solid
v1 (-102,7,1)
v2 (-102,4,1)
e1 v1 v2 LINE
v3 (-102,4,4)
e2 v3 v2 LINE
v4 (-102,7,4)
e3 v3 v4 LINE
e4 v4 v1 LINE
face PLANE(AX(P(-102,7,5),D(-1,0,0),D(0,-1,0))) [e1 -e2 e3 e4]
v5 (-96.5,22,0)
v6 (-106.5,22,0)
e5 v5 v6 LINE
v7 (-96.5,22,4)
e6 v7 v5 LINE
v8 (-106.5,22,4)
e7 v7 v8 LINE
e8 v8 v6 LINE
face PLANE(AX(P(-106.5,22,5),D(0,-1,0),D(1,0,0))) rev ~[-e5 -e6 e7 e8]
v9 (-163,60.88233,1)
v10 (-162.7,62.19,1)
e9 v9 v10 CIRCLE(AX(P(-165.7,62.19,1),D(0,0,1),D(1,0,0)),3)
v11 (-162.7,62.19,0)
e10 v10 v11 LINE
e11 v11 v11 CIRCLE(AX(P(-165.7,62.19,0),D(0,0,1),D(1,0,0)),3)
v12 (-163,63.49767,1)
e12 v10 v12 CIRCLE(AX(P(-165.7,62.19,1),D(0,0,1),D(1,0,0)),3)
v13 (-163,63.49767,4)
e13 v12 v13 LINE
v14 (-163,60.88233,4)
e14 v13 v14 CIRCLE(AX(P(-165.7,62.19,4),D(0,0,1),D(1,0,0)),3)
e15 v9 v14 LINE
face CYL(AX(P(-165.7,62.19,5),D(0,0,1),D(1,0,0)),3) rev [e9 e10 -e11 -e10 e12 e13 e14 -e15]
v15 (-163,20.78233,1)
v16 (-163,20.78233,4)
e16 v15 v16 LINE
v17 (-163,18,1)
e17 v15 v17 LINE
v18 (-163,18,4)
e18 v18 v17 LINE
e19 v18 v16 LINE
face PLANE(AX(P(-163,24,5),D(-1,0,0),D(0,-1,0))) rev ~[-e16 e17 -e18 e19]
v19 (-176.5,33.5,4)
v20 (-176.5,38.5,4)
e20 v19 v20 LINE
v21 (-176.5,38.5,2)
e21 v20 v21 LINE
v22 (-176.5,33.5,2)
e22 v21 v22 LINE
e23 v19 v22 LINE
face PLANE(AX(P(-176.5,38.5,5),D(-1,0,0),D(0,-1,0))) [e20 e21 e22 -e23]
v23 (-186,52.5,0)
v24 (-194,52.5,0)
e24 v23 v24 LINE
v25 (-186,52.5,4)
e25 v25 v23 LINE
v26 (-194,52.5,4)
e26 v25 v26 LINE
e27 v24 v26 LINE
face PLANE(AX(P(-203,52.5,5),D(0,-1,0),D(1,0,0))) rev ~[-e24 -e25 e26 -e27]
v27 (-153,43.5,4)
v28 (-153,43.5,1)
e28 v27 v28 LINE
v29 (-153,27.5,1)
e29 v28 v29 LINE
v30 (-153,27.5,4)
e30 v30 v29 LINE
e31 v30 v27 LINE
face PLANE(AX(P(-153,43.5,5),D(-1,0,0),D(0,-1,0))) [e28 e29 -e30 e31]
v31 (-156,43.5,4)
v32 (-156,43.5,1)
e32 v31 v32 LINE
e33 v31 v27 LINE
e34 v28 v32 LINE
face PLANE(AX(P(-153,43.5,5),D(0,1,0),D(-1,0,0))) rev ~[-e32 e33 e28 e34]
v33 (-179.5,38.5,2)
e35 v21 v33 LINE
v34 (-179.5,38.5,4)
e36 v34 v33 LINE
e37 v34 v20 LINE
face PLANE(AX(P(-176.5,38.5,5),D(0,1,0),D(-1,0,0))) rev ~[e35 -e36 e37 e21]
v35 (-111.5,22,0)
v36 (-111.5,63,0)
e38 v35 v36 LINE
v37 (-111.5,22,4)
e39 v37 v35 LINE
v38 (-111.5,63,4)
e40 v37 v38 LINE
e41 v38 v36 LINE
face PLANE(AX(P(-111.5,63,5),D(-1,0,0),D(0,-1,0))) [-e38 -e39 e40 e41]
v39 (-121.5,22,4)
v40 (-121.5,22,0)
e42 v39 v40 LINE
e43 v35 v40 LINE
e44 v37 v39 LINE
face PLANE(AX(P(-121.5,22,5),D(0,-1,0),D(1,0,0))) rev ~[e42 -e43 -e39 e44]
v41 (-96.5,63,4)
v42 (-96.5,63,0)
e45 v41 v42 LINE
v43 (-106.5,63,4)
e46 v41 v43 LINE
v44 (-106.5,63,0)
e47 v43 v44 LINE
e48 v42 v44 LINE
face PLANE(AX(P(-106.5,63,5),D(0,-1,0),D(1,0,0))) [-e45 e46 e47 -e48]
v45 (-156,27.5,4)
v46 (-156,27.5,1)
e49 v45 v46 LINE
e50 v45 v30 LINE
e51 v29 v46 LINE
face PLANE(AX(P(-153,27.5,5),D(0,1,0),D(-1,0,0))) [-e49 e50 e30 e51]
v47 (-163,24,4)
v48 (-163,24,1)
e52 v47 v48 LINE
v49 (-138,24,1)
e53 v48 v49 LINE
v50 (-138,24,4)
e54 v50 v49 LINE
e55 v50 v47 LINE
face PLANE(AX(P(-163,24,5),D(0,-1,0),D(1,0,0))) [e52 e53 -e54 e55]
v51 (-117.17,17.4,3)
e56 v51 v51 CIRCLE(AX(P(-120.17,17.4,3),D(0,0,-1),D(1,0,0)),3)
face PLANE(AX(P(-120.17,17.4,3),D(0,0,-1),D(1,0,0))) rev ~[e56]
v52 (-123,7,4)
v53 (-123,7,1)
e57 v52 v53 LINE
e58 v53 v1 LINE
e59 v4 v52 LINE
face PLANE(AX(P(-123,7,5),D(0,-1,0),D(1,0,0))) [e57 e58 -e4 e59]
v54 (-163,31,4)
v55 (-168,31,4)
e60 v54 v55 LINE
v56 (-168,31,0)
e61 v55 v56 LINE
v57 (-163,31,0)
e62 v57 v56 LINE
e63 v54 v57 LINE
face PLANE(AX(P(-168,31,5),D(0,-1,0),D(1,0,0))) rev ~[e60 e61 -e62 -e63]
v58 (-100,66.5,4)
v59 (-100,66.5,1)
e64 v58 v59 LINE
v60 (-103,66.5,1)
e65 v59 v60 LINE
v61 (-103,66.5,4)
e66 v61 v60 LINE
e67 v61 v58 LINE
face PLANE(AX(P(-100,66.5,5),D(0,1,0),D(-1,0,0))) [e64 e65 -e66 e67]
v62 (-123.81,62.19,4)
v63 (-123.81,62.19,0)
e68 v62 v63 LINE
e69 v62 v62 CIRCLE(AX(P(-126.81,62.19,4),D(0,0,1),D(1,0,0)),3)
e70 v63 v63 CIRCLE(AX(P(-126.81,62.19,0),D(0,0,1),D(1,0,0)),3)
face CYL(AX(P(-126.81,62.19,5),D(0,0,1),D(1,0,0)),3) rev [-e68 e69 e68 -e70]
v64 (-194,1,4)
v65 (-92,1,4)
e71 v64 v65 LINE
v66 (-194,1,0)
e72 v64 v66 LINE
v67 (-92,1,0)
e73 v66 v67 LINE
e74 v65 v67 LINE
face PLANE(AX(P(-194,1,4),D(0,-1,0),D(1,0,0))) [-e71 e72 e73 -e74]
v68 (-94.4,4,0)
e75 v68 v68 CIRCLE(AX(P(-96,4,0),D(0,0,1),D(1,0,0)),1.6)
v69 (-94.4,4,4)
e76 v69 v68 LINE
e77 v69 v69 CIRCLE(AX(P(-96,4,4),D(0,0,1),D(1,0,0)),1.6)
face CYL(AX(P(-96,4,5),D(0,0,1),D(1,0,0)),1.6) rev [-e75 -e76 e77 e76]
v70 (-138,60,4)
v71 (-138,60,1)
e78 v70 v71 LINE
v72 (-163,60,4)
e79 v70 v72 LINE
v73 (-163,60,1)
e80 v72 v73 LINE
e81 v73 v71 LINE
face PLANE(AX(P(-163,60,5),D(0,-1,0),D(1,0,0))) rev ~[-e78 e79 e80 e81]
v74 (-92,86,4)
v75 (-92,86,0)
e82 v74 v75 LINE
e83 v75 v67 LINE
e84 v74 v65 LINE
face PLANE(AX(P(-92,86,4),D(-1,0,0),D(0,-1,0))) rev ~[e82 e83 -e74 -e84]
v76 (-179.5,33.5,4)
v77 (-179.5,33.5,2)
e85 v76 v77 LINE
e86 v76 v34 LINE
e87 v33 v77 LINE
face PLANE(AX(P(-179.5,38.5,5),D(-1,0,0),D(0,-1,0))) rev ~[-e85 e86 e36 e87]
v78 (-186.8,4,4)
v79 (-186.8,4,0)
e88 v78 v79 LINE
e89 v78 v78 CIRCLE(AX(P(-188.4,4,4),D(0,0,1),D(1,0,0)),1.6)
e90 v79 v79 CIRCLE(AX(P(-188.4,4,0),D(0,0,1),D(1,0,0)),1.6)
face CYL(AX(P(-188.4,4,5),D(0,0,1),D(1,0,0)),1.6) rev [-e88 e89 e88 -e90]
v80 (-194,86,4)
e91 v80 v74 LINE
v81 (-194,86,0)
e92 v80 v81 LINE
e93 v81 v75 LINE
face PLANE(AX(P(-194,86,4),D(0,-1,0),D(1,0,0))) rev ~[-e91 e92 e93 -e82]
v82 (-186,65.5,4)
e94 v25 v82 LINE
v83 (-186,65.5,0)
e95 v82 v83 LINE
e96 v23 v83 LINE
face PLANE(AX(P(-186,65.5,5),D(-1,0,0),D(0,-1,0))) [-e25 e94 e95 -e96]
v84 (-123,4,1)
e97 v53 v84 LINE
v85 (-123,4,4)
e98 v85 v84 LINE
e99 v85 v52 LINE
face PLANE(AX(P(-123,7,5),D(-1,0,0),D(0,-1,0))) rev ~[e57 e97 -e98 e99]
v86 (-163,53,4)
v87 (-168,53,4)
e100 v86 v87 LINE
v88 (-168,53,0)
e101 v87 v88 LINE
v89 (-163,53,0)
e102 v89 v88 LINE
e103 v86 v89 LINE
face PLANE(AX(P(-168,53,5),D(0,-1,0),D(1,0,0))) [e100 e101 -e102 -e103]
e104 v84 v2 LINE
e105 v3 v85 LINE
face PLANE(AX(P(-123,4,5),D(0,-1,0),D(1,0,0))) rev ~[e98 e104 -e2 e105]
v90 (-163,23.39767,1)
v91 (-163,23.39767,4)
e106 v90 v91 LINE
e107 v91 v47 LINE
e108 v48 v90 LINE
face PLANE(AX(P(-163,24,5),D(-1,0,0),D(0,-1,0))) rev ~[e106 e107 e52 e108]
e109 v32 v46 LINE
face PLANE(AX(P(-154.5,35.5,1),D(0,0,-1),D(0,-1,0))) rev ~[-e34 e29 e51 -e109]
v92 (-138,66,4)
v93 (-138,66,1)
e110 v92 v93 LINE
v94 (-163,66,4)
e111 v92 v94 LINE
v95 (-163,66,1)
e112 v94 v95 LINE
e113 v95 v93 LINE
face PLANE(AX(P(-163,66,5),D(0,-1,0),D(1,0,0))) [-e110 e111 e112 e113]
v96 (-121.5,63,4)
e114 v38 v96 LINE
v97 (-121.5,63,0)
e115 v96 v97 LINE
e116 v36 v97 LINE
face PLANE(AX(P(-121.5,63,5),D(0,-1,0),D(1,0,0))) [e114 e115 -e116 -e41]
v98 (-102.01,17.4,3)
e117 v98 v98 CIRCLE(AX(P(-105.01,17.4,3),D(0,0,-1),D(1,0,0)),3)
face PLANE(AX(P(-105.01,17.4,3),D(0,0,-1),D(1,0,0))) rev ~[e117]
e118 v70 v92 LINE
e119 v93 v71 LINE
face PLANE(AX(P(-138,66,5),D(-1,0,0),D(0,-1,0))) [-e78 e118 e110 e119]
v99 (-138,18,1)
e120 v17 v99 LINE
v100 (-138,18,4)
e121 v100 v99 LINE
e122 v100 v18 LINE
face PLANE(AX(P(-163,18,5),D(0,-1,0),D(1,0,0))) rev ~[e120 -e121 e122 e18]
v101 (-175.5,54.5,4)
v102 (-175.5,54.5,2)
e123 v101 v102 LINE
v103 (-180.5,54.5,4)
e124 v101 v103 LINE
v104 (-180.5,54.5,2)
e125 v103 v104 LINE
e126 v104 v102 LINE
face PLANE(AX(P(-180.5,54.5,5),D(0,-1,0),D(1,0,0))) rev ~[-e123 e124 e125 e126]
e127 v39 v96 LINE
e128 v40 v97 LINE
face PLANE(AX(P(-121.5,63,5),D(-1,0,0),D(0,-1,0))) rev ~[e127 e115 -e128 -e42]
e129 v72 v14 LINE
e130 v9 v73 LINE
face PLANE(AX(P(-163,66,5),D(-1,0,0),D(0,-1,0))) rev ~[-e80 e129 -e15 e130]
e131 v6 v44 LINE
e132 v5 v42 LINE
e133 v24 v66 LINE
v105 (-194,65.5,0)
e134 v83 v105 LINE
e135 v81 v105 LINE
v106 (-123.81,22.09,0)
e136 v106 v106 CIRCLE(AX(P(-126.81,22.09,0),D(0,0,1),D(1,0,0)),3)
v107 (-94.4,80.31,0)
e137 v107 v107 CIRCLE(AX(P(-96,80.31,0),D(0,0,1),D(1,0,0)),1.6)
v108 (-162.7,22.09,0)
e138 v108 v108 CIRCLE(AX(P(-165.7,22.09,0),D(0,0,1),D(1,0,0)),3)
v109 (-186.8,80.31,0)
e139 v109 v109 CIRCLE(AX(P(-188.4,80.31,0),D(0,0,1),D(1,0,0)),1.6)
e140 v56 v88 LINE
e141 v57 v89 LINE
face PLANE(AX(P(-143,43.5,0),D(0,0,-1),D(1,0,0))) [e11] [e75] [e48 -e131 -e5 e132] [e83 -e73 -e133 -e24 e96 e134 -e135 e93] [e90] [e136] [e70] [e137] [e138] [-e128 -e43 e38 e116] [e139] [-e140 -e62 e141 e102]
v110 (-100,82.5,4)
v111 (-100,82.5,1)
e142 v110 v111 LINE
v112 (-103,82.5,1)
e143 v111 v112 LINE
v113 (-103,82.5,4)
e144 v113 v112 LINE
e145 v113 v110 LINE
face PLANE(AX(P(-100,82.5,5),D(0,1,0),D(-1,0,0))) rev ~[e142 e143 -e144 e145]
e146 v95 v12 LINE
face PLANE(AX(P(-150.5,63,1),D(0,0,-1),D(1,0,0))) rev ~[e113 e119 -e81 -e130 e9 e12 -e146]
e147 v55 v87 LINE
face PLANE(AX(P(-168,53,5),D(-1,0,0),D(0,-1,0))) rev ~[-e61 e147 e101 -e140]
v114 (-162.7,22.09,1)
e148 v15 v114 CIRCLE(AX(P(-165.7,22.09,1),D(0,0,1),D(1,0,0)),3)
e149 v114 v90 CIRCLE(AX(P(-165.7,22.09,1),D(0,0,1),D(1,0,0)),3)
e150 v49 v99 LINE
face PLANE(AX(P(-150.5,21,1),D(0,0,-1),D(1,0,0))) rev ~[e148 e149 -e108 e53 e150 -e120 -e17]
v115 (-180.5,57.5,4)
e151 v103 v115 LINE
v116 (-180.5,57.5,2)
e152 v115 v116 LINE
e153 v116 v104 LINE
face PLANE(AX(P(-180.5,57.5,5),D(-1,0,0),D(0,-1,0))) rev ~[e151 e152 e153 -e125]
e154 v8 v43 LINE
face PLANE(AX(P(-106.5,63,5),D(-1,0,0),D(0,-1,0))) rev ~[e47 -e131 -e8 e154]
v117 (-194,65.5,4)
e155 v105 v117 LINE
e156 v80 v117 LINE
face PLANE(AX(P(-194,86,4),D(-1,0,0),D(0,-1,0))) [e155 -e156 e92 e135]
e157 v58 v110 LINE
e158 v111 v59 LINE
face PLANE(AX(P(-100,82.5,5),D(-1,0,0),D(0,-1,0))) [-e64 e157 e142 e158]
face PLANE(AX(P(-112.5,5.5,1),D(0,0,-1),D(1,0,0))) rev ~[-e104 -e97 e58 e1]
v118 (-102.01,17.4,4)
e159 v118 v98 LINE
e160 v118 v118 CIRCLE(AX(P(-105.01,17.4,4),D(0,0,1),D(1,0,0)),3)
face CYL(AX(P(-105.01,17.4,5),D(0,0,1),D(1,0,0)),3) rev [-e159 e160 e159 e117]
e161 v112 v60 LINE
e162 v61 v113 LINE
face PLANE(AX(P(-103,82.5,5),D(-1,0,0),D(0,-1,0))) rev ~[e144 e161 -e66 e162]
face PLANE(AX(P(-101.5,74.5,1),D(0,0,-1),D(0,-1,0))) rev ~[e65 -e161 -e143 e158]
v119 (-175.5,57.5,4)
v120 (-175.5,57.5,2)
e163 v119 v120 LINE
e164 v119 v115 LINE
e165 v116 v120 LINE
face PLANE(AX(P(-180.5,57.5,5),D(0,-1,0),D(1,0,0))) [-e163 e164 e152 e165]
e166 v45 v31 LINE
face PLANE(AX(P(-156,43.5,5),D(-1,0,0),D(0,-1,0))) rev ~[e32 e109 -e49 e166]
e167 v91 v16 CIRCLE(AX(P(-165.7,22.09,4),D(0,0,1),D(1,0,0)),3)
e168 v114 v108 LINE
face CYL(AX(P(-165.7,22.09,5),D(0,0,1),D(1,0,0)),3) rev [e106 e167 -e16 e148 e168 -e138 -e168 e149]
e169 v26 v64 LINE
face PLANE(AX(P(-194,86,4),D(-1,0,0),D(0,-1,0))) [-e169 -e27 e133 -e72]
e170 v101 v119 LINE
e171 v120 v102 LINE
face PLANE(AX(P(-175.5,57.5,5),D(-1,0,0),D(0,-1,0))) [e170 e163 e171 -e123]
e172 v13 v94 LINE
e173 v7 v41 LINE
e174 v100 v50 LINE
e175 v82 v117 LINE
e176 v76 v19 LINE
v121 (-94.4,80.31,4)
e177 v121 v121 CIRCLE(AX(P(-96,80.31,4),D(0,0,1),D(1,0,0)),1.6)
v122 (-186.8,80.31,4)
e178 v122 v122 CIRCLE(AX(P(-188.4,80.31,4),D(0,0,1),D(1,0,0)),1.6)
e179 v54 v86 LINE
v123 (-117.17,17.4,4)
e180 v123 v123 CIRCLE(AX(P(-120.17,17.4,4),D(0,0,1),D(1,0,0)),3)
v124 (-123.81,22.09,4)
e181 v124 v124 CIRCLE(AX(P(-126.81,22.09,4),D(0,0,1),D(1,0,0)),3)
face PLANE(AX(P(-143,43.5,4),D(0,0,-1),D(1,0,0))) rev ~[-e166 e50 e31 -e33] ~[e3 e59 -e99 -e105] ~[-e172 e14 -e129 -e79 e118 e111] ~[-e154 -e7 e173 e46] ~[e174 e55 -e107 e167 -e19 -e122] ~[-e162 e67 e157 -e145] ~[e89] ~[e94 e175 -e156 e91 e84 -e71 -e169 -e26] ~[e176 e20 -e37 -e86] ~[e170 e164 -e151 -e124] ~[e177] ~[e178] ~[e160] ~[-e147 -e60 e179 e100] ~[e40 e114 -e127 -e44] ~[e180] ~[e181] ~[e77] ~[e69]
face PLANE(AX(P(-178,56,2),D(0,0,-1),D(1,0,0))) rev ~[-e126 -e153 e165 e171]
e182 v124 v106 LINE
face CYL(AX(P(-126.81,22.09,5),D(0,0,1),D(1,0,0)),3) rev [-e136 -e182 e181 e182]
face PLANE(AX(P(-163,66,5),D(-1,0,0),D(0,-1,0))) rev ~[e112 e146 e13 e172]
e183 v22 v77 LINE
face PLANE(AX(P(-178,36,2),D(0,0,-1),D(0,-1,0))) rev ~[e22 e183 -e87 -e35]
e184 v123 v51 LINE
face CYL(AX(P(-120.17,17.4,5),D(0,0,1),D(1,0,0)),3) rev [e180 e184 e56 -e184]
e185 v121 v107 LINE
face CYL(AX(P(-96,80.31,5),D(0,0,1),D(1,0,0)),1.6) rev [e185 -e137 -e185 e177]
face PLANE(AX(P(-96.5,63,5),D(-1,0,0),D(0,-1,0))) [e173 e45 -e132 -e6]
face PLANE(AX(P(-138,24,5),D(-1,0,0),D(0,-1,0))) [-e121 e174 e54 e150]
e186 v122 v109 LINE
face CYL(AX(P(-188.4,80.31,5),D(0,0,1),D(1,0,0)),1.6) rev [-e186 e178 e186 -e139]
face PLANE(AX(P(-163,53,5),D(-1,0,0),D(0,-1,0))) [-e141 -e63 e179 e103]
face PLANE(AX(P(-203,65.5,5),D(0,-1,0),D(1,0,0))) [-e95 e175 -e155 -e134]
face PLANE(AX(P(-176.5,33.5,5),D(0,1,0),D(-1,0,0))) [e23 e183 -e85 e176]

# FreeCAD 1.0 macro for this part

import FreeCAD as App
import Part
import Sketcher
Q = App.Units.Quantity

doc = App.newDocument("Part")
params = doc.addObject("Spreadsheet::Sheet", "Params")
for row, (alias, value) in enumerate([
    ("sketch1_diameter", "3.2 mm"),
    ("pad1_length", "10 mm"),
    ("sketch2_diameter", "3.2 mm"),
    ("pad2_length", "10 mm"),
    ("sketch3_diameter", "3.2 mm"),
    ("pad3_length", "10 mm"),
    ("sketch4_diameter", "3.2 mm"),
    ("pad4_length", "10 mm"),
    ("sketch5_width", "16 mm"),
    ("sketch5_height", "3 mm"),
    ("pad5_length", "4 mm"),
    ("sketch6_width", "5 mm"),
    ("sketch6_height", "3 mm"),
    ("pad6_length", "3 mm"),
    ("sketch7_width", "16 mm"),
    ("sketch7_height", "3 mm"),
    ("pad7_length", "4 mm"),
    ("sketch8_width", "25 mm"),
    ("sketch8_height", "6 mm"),
    ("pad8_length", "4 mm"),
    ("sketch9_width", "25 mm"),
    ("sketch9_height", "6 mm"),
    ("pad9_length", "4 mm"),
    ("sketch10_width", "5 mm"),
    ("sketch10_height", "3 mm"),
    ("pad10_length", "3 mm"),
    ("sketch11_diameter", "6 mm"),
    ("pad11_length", "2 mm"),
    ("sketch12_diameter", "6 mm"),
    ("pad12_length", "2 mm"),
    ("sketch13_diameter", "3.2 mm"),
    ("pad13_length", "10 mm"),
    ("sketch14_diameter", "3.2 mm"),
    ("pad14_length", "10 mm"),
    ("sketch15_diameter", "3.2 mm"),
    ("pad15_length", "10 mm"),
    ("sketch16_diameter", "3.2 mm"),
    ("pad16_length", "10 mm"),
    ("sketch17_width", "21 mm"),
    ("sketch17_height", "3 mm"),
    ("pad17_length", "4 mm"),
    ("sketch18_diameter", "6 mm"),
    ("pad18_length", "10 mm"),
    ("sketch19_diameter", "6 mm"),
    ("pad19_length", "10 mm"),
    ("sketch20_diameter", "6 mm"),
    ("pad20_length", "10 mm"),
    ("sketch21_diameter", "6 mm"),
    ("pad21_length", "10 mm"),
    ("sketch22_width", "5 mm"),
    ("sketch22_height", "22 mm"),
    ("pad22_length", "10 mm"),
    ("sketch23_width", "10 mm"),
    ("sketch23_height", "41 mm"),
    ("pad23_length", "10 mm"),
    ("sketch24_width", "10 mm"),
    ("sketch24_height", "41 mm"),
    ("pad24_length", "10 mm"),
    ("sketch25_width", "17 mm"),
    ("sketch25_height", "13 mm"),
    ("pad25_length", "10 mm"),
    ("sketch26_width", "102 mm"),
    ("sketch26_height", "85 mm"),
    ("pad26_length", "4 mm"),
], start=1):
    params.set(f"A{row}", alias)
    params.set(f"B{row}", "=" + value)
    params.setAlias(f"B{row}", alias)

body = doc.addObject("PartDesign::Body", "Body")

# Sketch on XY plane
sketch1 = doc.addObject("Sketcher::SketchObject", "Sketch")
body.addObject(sketch1)
sketch1.AttachmentSupport = (doc.XY_Plane, [""])
sketch1.MapMode = "FlatFace"
sketch1.addGeometry(Part.Circle(App.Vector(3.6, 5.69, 0), App.Vector(0, 0, 1), 1.6), False)
sketch1.addConstraint(Sketcher.Constraint("Diameter", 0, Q("3.2 mm")))
sketch1.addConstraint(Sketcher.Constraint("DistanceX", -1, 1, 0, 3, Q("3.6 mm")))
sketch1.addConstraint(Sketcher.Constraint("DistanceY", -1, 1, 0, 3, Q("5.69 mm")))
sketch1.setExpression("Constraints[0]", "Params.sketch1_diameter")
pad1 = doc.addObject("PartDesign::Pad", "Pad")
body.addObject(pad1)
pad1.Profile = sketch1
pad1.setExpression("Length", "Params.pad1_length")
body2 = doc.addObject("PartDesign::Body", "Body001")

# Sketch on XY plane
sketch2 = doc.addObject("Sketcher::SketchObject", "Sketch001")
body2.addObject(sketch2)
sketch2.AttachmentSupport = (doc.getObject("XY_Plane001"), [""])
sketch2.MapMode = "FlatFace"
sketch2.addGeometry(Part.Circle(App.Vector(96, 5.69, 0), App.Vector(0, 0, 1), 1.6), False)
sketch2.addConstraint(Sketcher.Constraint("Diameter", 0, Q("3.2 mm")))
sketch2.addConstraint(Sketcher.Constraint("DistanceX", -1, 1, 0, 3, Q("96 mm")))
sketch2.addConstraint(Sketcher.Constraint("DistanceY", -1, 1, 0, 3, Q("5.69 mm")))
sketch2.setExpression("Constraints[0]", "Params.sketch2_diameter")
pad2 = doc.addObject("PartDesign::Pad", "Pad001")
body2.addObject(pad2)
pad2.Profile = sketch2
pad2.setExpression("Length", "Params.pad2_length")
body3 = doc.addObject("PartDesign::Body", "Body002")

# Sketch on XY plane
sketch3 = doc.addObject("Sketcher::SketchObject", "Sketch002")
body3.addObject(sketch3)
sketch3.AttachmentSupport = (doc.getObject("XY_Plane002"), [""])
sketch3.MapMode = "FlatFace"
sketch3.addGeometry(Part.Circle(App.Vector(3.6, 82, 0), App.Vector(0, 0, 1), 1.6), False)
sketch3.addConstraint(Sketcher.Constraint("Diameter", 0, Q("3.2 mm")))
sketch3.addConstraint(Sketcher.Constraint("DistanceY", -1, 1, 0, 3, Q("82 mm")))
sketch3.addConstraint(Sketcher.Constraint("DistanceX", -1, 1, 0, 3, Q("3.6 mm")))
sketch3.setExpression("Constraints[0]", "Params.sketch3_diameter")
pad3 = doc.addObject("PartDesign::Pad", "Pad002")
body3.addObject(pad3)
pad3.Profile = sketch3
pad3.setExpression("Length", "Params.pad3_length")
body4 = doc.addObject("PartDesign::Body", "Body003")

# Sketch on XY plane
sketch4 = doc.addObject("Sketcher::SketchObject", "Sketch003")
body4.addObject(sketch4)
sketch4.AttachmentSupport = (doc.getObject("XY_Plane003"), [""])
sketch4.MapMode = "FlatFace"
sketch4.addGeometry(Part.Circle(App.Vector(96, 82, 0), App.Vector(0, 0, 1), 1.6), False)
sketch4.addConstraint(Sketcher.Constraint("Diameter", 0, Q("3.2 mm")))
sketch4.addConstraint(Sketcher.Constraint("DistanceX", -1, 1, 0, 3, Q("96 mm")))
sketch4.addConstraint(Sketcher.Constraint("DistanceY", -1, 1, 0, 3, Q("82 mm")))
sketch4.setExpression("Constraints[0]", "Params.sketch4_diameter")
pad4 = doc.addObject("PartDesign::Pad", "Pad003")
body4.addObject(pad4)
pad4.Profile = sketch4
pad4.setExpression("Length", "Params.pad4_length")
body5 = doc.addObject("PartDesign::Body", "Body004")

# Sketch on XY plane
sketch5 = doc.addObject("Sketcher::SketchObject", "Sketch004")
body5.addObject(sketch5)
sketch5.AttachmentSupport = (doc.getObject("XY_Plane004"), [""])
sketch5.MapMode = "FlatFace"
sketch5.addGeometry(Part.LineSegment(App.Vector(0, 3, 0), App.Vector(0, 0, 0)), False)
sketch5.addGeometry(Part.LineSegment(App.Vector(0, 0, 0), App.Vector(16, 0, 0)), False)
sketch5.addGeometry(Part.LineSegment(App.Vector(16, 0, 0), App.Vector(16, 3, 0)), False)
sketch5.addGeometry(Part.LineSegment(App.Vector(16, 3, 0), App.Vector(0, 3, 0)), False)
sketch5.addConstraint(Sketcher.Constraint("Coincident", 0, 2, 1, 1))
sketch5.addConstraint(Sketcher.Constraint("Coincident", 1, 2, 2, 1))
sketch5.addConstraint(Sketcher.Constraint("Coincident", 2, 2, 3, 1))
sketch5.addConstraint(Sketcher.Constraint("Coincident", 3, 2, 0, 1))
sketch5.addConstraint(Sketcher.Constraint("Vertical", 0))
sketch5.addConstraint(Sketcher.Constraint("Horizontal", 1))
sketch5.addConstraint(Sketcher.Constraint("Vertical", 2))
sketch5.addConstraint(Sketcher.Constraint("Horizontal", 3))
sketch5.addConstraint(Sketcher.Constraint("Coincident", 0, 2, -1, 1))
sketch5.addConstraint(Sketcher.Constraint("DistanceX", 1, 1, 1, 2, Q("16 mm")))
sketch5.addConstraint(Sketcher.Constraint("DistanceY", 0, 2, 0, 1, Q("3 mm")))
sketch5.setExpression("Constraints[9]", "Params.sketch5_width")
sketch5.setExpression("Constraints[10]", "Params.sketch5_height")
pad5 = doc.addObject("PartDesign::Pad", "Pad004")
body5.addObject(pad5)
pad5.Profile = sketch5
pad5.setExpression("Length", "Params.pad5_length")
body6 = doc.addObject("PartDesign::Body", "Body005")
doc.recompute()

body5.Placement = App.Placement(App.Vector(39, 42.5, 0), App.Rotation(App.Vector(0, 0, 1), 90))
boolean = doc.addObject("PartDesign::Boolean", "Boolean")
body6.addObject(boolean)
boolean.Type = "Fuse"
boolean.addObjects([body5])
body7 = doc.addObject("PartDesign::Body", "Body006")

# Sketch on XY plane
sketch6 = doc.addObject("Sketcher::SketchObject", "Sketch005")
body7.addObject(sketch6)
sketch6.AttachmentSupport = (doc.getObject("XY_Plane006"), [""])
sketch6.MapMode = "FlatFace"
sketch6.addGeometry(Part.LineSegment(App.Vector(0, 3, 0), App.Vector(0, 0, 0)), False)
sketch6.addGeometry(Part.LineSegment(App.Vector(0, 0, 0), App.Vector(5, 0, 0)), False)
sketch6.addGeometry(Part.LineSegment(App.Vector(5, 0, 0), App.Vector(5, 3, 0)), False)
sketch6.addGeometry(Part.LineSegment(App.Vector(5, 3, 0), App.Vector(0, 3, 0)), False)
sketch6.addConstraint(Sketcher.Constraint("Coincident", 0, 2, 1, 1))
sketch6.addConstraint(Sketcher.Constraint("Coincident", 1, 2, 2, 1))
sketch6.addConstraint(Sketcher.Constraint("Coincident", 2, 2, 3, 1))
sketch6.addConstraint(Sketcher.Constraint("Coincident", 3, 2, 0, 1))
sketch6.addConstraint(Sketcher.Constraint("Vertical", 0))
sketch6.addConstraint(Sketcher.Constraint("Horizontal", 1))
sketch6.addConstraint(Sketcher.Constraint("Vertical", 2))
sketch6.addConstraint(Sketcher.Constraint("Horizontal", 3))
sketch6.addConstraint(Sketcher.Constraint("Coincident", 0, 2, -1, 1))
sketch6.addConstraint(Sketcher.Constraint("DistanceX", 1, 1, 1, 2, Q("5 mm")))
sketch6.addConstraint(Sketcher.Constraint("DistanceY", 0, 2, 0, 1, Q("3 mm")))
sketch6.setExpression("Constraints[9]", "Params.sketch6_width")
sketch6.setExpression("Constraints[10]", "Params.sketch6_height")
pad6 = doc.addObject("PartDesign::Pad", "Pad005")
body7.addObject(pad6)
pad6.Profile = sketch6
pad6.setExpression("Length", "Params.pad6_length")
body8 = doc.addObject("PartDesign::Body", "Body007")
doc.recompute()

body7.Placement = App.Placement(App.Vector(15.5, 47.5, 0), App.Rotation(App.Vector(0, 0, 1), 90))
boolean2 = doc.addObject("PartDesign::Boolean", "Boolean001")
body8.addObject(boolean2)
boolean2.Type = "Fuse"
boolean2.addObjects([body7])
body9 = doc.addObject("PartDesign::Body", "Body008")

# Sketch on XY plane
sketch7 = doc.addObject("Sketcher::SketchObject", "Sketch006")
body9.addObject(sketch7)
sketch7.AttachmentSupport = (doc.getObject("XY_Plane008"), [""])
sketch7.MapMode = "FlatFace"
sketch7.addGeometry(Part.LineSegment(App.Vector(0, 3, 0), App.Vector(0, 0, 0)), False)
sketch7.addGeometry(Part.LineSegment(App.Vector(0, 0, 0), App.Vector(16, 0, 0)), False)
sketch7.addGeometry(Part.LineSegment(App.Vector(16, 0, 0), App.Vector(16, 3, 0)), False)
sketch7.addGeometry(Part.LineSegment(App.Vector(16, 3, 0), App.Vector(0, 3, 0)), False)
sketch7.addConstraint(Sketcher.Constraint("Coincident", 0, 2, 1, 1))
sketch7.addConstraint(Sketcher.Constraint("Coincident", 1, 2, 2, 1))
sketch7.addConstraint(Sketcher.Constraint("Coincident", 2, 2, 3, 1))
sketch7.addConstraint(Sketcher.Constraint("Coincident", 3, 2, 0, 1))
sketch7.addConstraint(Sketcher.Constraint("Vertical", 0))
sketch7.addConstraint(Sketcher.Constraint("Horizontal", 1))
sketch7.addConstraint(Sketcher.Constraint("Vertical", 2))
sketch7.addConstraint(Sketcher.Constraint("Horizontal", 3))
sketch7.addConstraint(Sketcher.Constraint("Coincident", 0, 2, -1, 1))
sketch7.addConstraint(Sketcher.Constraint("DistanceX", 1, 1, 1, 2, Q("16 mm")))
sketch7.addConstraint(Sketcher.Constraint("DistanceY", 0, 2, 0, 1, Q("3 mm")))
sketch7.setExpression("Constraints[9]", "Params.sketch7_width")
sketch7.setExpression("Constraints[10]", "Params.sketch7_height")
pad7 = doc.addObject("PartDesign::Pad", "Pad006")
body9.addObject(pad7)
pad7.Profile = sketch7
pad7.setExpression("Length", "Params.pad7_length")
body10 = doc.addObject("PartDesign::Body", "Body009")
doc.recompute()

body9.Placement = App.Placement(App.Vector(92, 3.5, 0), App.Rotation(App.Vector(0, 0, 1), 90))
boolean3 = doc.addObject("PartDesign::Boolean", "Boolean002")
body10.addObject(boolean3)
boolean3.Type = "Fuse"
boolean3.addObjects([body9])
body11 = doc.addObject("PartDesign::Body", "Body010")

# Sketch on XY plane
sketch8 = doc.addObject("Sketcher::SketchObject", "Sketch007")
body11.addObject(sketch8)
sketch8.AttachmentSupport = (doc.getObject("XY_Plane010"), [""])
sketch8.MapMode = "FlatFace"
sketch8.addGeometry(Part.LineSegment(App.Vector(29, 68, 0), App.Vector(29, 62, 0)), False)
sketch8.addGeometry(Part.LineSegment(App.Vector(29, 62, 0), App.Vector(54, 62, 0)), False)
sketch8.addGeometry(Part.LineSegment(App.Vector(54, 62, 0), App.Vector(54, 68, 0)), False)
sketch8.addGeometry(Part.LineSegment(App.Vector(54, 68, 0), App.Vector(29, 68, 0)), False)
sketch8.addConstraint(Sketcher.Constraint("Coincident", 0, 2, 1, 1))
sketch8.addConstraint(Sketcher.Constraint("Coincident", 1, 2, 2, 1))
sketch8.addConstraint(Sketcher.Constraint("Coincident", 2, 2, 3, 1))
sketch8.addConstraint(Sketcher.Constraint("Coincident", 3, 2, 0, 1))
sketch8.addConstraint(Sketcher.Constraint("Vertical", 0))
sketch8.addConstraint(Sketcher.Constraint("Horizontal", 1))
sketch8.addConstraint(Sketcher.Constraint("Vertical", 2))
sketch8.addConstraint(Sketcher.Constraint("Horizontal", 3))
sketch8.addConstraint(Sketcher.Constraint("DistanceX", 1, 1, 1, 2, Q("25 mm")))
sketch8.addConstraint(Sketcher.Constraint("DistanceY", 0, 2, 0, 1, Q("6 mm")))
sketch8.addConstraint(Sketcher.Constraint("DistanceX", -1, 1, 0, 2, Q("29 mm")))
sketch8.addConstraint(Sketcher.Constraint("DistanceY", -1, 1, 0, 2, Q("62 mm")))
sketch8.setExpression("Constraints[8]", "Params.sketch8_width")
sketch8.setExpression("Constraints[9]", "Params.sketch8_height")
pad8 = doc.addObject("PartDesign::Pad", "Pad007")
body11.addObject(pad8)
pad8.Profile = sketch8
pad8.setExpression("Length", "Params.pad8_length")
body12 = doc.addObject("PartDesign::Body", "Body011")

# Sketch on XY plane
sketch9 = doc.addObject("Sketcher::SketchObject", "Sketch008")
body12.addObject(sketch9)
sketch9.AttachmentSupport = (doc.getObject("XY_Plane011"), [""])
sketch9.MapMode = "FlatFace"
sketch9.addGeometry(Part.LineSegment(App.Vector(29, 26, 0), App.Vector(29, 20, 0)), False)
sketch9.addGeometry(Part.LineSegment(App.Vector(29, 20, 0), App.Vector(54, 20, 0)), False)
sketch9.addGeometry(Part.LineSegment(App.Vector(54, 20, 0), App.Vector(54, 26, 0)), False)
sketch9.addGeometry(Part.LineSegment(App.Vector(54, 26, 0), App.Vector(29, 26, 0)), False)
sketch9.addConstraint(Sketcher.Constraint("Coincident", 0, 2, 1, 1))
sketch9.addConstraint(Sketcher.Constraint("Coincident", 1, 2, 2, 1))
sketch9.addConstraint(Sketcher.Constraint("Coincident", 2, 2, 3, 1))
sketch9.addConstraint(Sketcher.Constraint("Coincident", 3, 2, 0, 1))
sketch9.addConstraint(Sketcher.Constraint("Vertical", 0))
sketch9.addConstraint(Sketcher.Constraint("Horizontal", 1))
sketch9.addConstraint(Sketcher.Constraint("Vertical", 2))
sketch9.addConstraint(Sketcher.Constraint("Horizontal", 3))
sketch9.addConstraint(Sketcher.Constraint("DistanceX", 1, 1, 1, 2, Q("25 mm")))
sketch9.addConstraint(Sketcher.Constraint("DistanceY", 0, 2, 0, 1, Q("6 mm")))
sketch9.addConstraint(Sketcher.Constraint("DistanceX", -1, 1, 0, 2, Q("29 mm")))
sketch9.addConstraint(Sketcher.Constraint("DistanceY", -1, 1, 0, 2, Q("20 mm")))
sketch9.setExpression("Constraints[8]", "Params.sketch9_width")
sketch9.setExpression("Constraints[9]", "Params.sketch9_height")
pad9 = doc.addObject("PartDesign::Pad", "Pad008")
body12.addObject(pad9)
pad9.Profile = sketch9
pad9.setExpression("Length", "Params.pad9_length")
body13 = doc.addObject("PartDesign::Body", "Body012")

# Sketch on XY plane
sketch10 = doc.addObject("Sketcher::SketchObject", "Sketch009")
body13.addObject(sketch10)
sketch10.AttachmentSupport = (doc.getObject("XY_Plane012"), [""])
sketch10.MapMode = "FlatFace"
sketch10.addGeometry(Part.LineSegment(App.Vector(11.5, 31.5, 0), App.Vector(11.5, 28.5, 0)), False)
sketch10.addGeometry(Part.LineSegment(App.Vector(11.5, 28.5, 0), App.Vector(16.5, 28.5, 0)), False)
sketch10.addGeometry(Part.LineSegment(App.Vector(16.5, 28.5, 0), App.Vector(16.5, 31.5, 0)), False)
sketch10.addGeometry(Part.LineSegment(App.Vector(16.5, 31.5, 0), App.Vector(11.5, 31.5, 0)), False)
sketch10.addConstraint(Sketcher.Constraint("Coincident", 0, 2, 1, 1))
sketch10.addConstraint(Sketcher.Constraint("Coincident", 1, 2, 2, 1))
sketch10.addConstraint(Sketcher.Constraint("Coincident", 2, 2, 3, 1))
sketch10.addConstraint(Sketcher.Constraint("Coincident", 3, 2, 0, 1))
sketch10.addConstraint(Sketcher.Constraint("Vertical", 0))
sketch10.addConstraint(Sketcher.Constraint("Horizontal", 1))
sketch10.addConstraint(Sketcher.Constraint("Vertical", 2))
sketch10.addConstraint(Sketcher.Constraint("Horizontal", 3))
sketch10.addConstraint(Sketcher.Constraint("DistanceX", 1, 1, 1, 2, Q("5 mm")))
sketch10.addConstraint(Sketcher.Constraint("DistanceY", 0, 2, 0, 1, Q("3 mm")))
sketch10.addConstraint(Sketcher.Constraint("DistanceX", -1, 1, 0, 2, Q("11.5 mm")))
sketch10.addConstraint(Sketcher.Constraint("DistanceY", -1, 1, 0, 2, Q("28.5 mm")))
sketch10.setExpression("Constraints[8]", "Params.sketch10_width")
sketch10.setExpression("Constraints[9]", "Params.sketch10_height")
pad10 = doc.addObject("PartDesign::Pad", "Pad009")
body13.addObject(pad10)
pad10.Profile = sketch10
pad10.setExpression("Length", "Params.pad10_length")
body14 = doc.addObject("PartDesign::Body", "Body013")

# Sketch on XY plane
sketch11 = doc.addObject("Sketcher::SketchObject", "Sketch010")
body14.addObject(sketch11)
sketch11.AttachmentSupport = (doc.getObject("XY_Plane013"), [""])
sketch11.MapMode = "FlatFace"
sketch11.addGeometry(Part.Circle(App.Vector(86.99, 68.6, 0), App.Vector(0, 0, 1), 3), False)
sketch11.addConstraint(Sketcher.Constraint("Diameter", 0, Q("6 mm")))
sketch11.addConstraint(Sketcher.Constraint("DistanceY", -1, 1, 0, 3, Q("68.6 mm")))
sketch11.addConstraint(Sketcher.Constraint("DistanceX", -1, 1, 0, 3, Q("86.99 mm")))
sketch11.setExpression("Constraints[0]", "Params.sketch11_diameter")
pad11 = doc.addObject("PartDesign::Pad", "Pad010")
body14.addObject(pad11)
pad11.Profile = sketch11
pad11.setExpression("Length", "Params.pad11_length")
body15 = doc.addObject("PartDesign::Body", "Body014")

# Sketch on XY plane
sketch12 = doc.addObject("Sketcher::SketchObject", "Sketch011")
body15.addObject(sketch12)
sketch12.AttachmentSupport = (doc.getObject("XY_Plane014"), [""])
sketch12.MapMode = "FlatFace"
sketch12.addGeometry(Part.Circle(App.Vector(71.83, 68.6, 0), App.Vector(0, 0, 1), 3), False)
sketch12.addConstraint(Sketcher.Constraint("Diameter", 0, Q("6 mm")))
sketch12.addConstraint(Sketcher.Constraint("DistanceY", -1, 1, 0, 3, Q("68.6 mm")))
sketch12.addConstraint(Sketcher.Constraint("DistanceX", -1, 1, 0, 3, Q("71.83 mm")))
sketch12.setExpression("Constraints[0]", "Params.sketch12_diameter")
pad12 = doc.addObject("PartDesign::Pad", "Pad011")
body15.addObject(pad12)
pad12.Profile = sketch12
pad12.setExpression("Length", "Params.pad12_length")
body16 = doc.addObject("PartDesign::Body", "Body015")

# Sketch on XY plane
sketch13 = doc.addObject("Sketcher::SketchObject", "Sketch012")
body16.addObject(sketch13)
sketch13.AttachmentSupport = (doc.getObject("XY_Plane015"), [""])
sketch13.MapMode = "FlatFace"
sketch13.addGeometry(Part.Circle(App.Vector(96, 5.69, 0), App.Vector(0, 0, 1), 1.6), False)
sketch13.addConstraint(Sketcher.Constraint("Diameter", 0, Q("3.2 mm")))
sketch13.addConstraint(Sketcher.Constraint("DistanceX", -1, 1, 0, 3, Q("96 mm")))
sketch13.addConstraint(Sketcher.Constraint("DistanceY", -1, 1, 0, 3, Q("5.69 mm")))
sketch13.setExpression("Constraints[0]", "Params.sketch13_diameter")
pad13 = doc.addObject("PartDesign::Pad", "Pad012")
body16.addObject(pad13)
pad13.Profile = sketch13
pad13.setExpression("Length", "Params.pad13_length")
body17 = doc.addObject("PartDesign::Body", "Body016")

# Sketch on XY plane
sketch14 = doc.addObject("Sketcher::SketchObject", "Sketch013")
body17.addObject(sketch14)
sketch14.AttachmentSupport = (doc.getObject("XY_Plane016"), [""])
sketch14.MapMode = "FlatFace"
sketch14.addGeometry(Part.Circle(App.Vector(3.6, 82, 0), App.Vector(0, 0, 1), 1.6), False)
sketch14.addConstraint(Sketcher.Constraint("Diameter", 0, Q("3.2 mm")))
sketch14.addConstraint(Sketcher.Constraint("DistanceY", -1, 1, 0, 3, Q("82 mm")))
sketch14.addConstraint(Sketcher.Constraint("DistanceX", -1, 1, 0, 3, Q("3.6 mm")))
sketch14.setExpression("Constraints[0]", "Params.sketch14_diameter")
pad14 = doc.addObject("PartDesign::Pad", "Pad013")
body17.addObject(pad14)
pad14.Profile = sketch14
pad14.setExpression("Length", "Params.pad14_length")
body18 = doc.addObject("PartDesign::Body", "Body017")

# Sketch on XY plane
sketch15 = doc.addObject("Sketcher::SketchObject", "Sketch014")
body18.addObject(sketch15)
sketch15.AttachmentSupport = (doc.getObject("XY_Plane017"), [""])
sketch15.MapMode = "FlatFace"
sketch15.addGeometry(Part.Circle(App.Vector(96, 82, 0), App.Vector(0, 0, 1), 1.6), False)
sketch15.addConstraint(Sketcher.Constraint("Diameter", 0, Q("3.2 mm")))
sketch15.addConstraint(Sketcher.Constraint("DistanceX", -1, 1, 0, 3, Q("96 mm")))
sketch15.addConstraint(Sketcher.Constraint("DistanceY", -1, 1, 0, 3, Q("82 mm")))
sketch15.setExpression("Constraints[0]", "Params.sketch15_diameter")
pad15 = doc.addObject("PartDesign::Pad", "Pad014")
body18.addObject(pad15)
pad15.Profile = sketch15
pad15.setExpression("Length", "Params.pad15_length")
body19 = doc.addObject("PartDesign::Body", "Body018")
body19.AllowCompound = True

# Sketch on XY plane
sketch16 = doc.addObject("Sketcher::SketchObject", "Sketch015")
body19.addObject(sketch16)
sketch16.AttachmentSupport = (doc.getObject("XY_Plane018"), [""])
sketch16.MapMode = "FlatFace"
sketch16.addGeometry(Part.Circle(App.Vector(3.6, 5.69, 0), App.Vector(0, 0, 1), 1.6), False)
sketch16.addConstraint(Sketcher.Constraint("Diameter", 0, Q("3.2 mm")))
sketch16.addConstraint(Sketcher.Constraint("DistanceX", -1, 1, 0, 3, Q("3.6 mm")))
sketch16.addConstraint(Sketcher.Constraint("DistanceY", -1, 1, 0, 3, Q("5.69 mm")))
sketch16.setExpression("Constraints[0]", "Params.sketch16_diameter")
pad16 = doc.addObject("PartDesign::Pad", "Pad015")
body19.addObject(pad16)
pad16.Profile = sketch16
pad16.setExpression("Length", "Params.pad16_length")
doc.recompute()

boolean4 = doc.addObject("PartDesign::Boolean", "Boolean003")
body19.addObject(boolean4)
boolean4.Type = "Fuse"
boolean4.addObjects([body16])
doc.recompute()

boolean5 = doc.addObject("PartDesign::Boolean", "Boolean004")
body19.addObject(boolean5)
boolean5.Type = "Fuse"
boolean5.addObjects([body17])
doc.recompute()

boolean6 = doc.addObject("PartDesign::Boolean", "Boolean005")
body19.addObject(boolean6)
boolean6.Type = "Fuse"
boolean6.addObjects([body18])
body20 = doc.addObject("PartDesign::Body", "Body019")
body20.AllowCompound = True

# Sketch on XY plane
sketch17 = doc.addObject("Sketcher::SketchObject", "Sketch016")
body20.addObject(sketch17)
sketch17.AttachmentSupport = (doc.getObject("XY_Plane019"), [""])
sketch17.MapMode = "FlatFace"
sketch17.addGeometry(Part.LineSegment(App.Vector(69, 82, 0), App.Vector(69, 79, 0)), False)
sketch17.addGeometry(Part.LineSegment(App.Vector(69, 79, 0), App.Vector(90, 79, 0)), False)
sketch17.addGeometry(Part.LineSegment(App.Vector(90, 79, 0), App.Vector(90, 82, 0)), False)
sketch17.addGeometry(Part.LineSegment(App.Vector(90, 82, 0), App.Vector(69, 82, 0)), False)
sketch17.addConstraint(Sketcher.Constraint("Coincident", 0, 2, 1, 1))
sketch17.addConstraint(Sketcher.Constraint("Coincident", 1, 2, 2, 1))
sketch17.addConstraint(Sketcher.Constraint("Coincident", 2, 2, 3, 1))
sketch17.addConstraint(Sketcher.Constraint("Coincident", 3, 2, 0, 1))
sketch17.addConstraint(Sketcher.Constraint("Vertical", 0))
sketch17.addConstraint(Sketcher.Constraint("Horizontal", 1))
sketch17.addConstraint(Sketcher.Constraint("Vertical", 2))
sketch17.addConstraint(Sketcher.Constraint("Horizontal", 3))
sketch17.addConstraint(Sketcher.Constraint("DistanceX", 1, 1, 1, 2, Q("21 mm")))
sketch17.addConstraint(Sketcher.Constraint("DistanceY", 0, 2, 0, 1, Q("3 mm")))
sketch17.addConstraint(Sketcher.Constraint("DistanceX", -1, 1, 0, 2, Q("69 mm")))
sketch17.addConstraint(Sketcher.Constraint("DistanceY", -1, 1, 0, 2, Q("79 mm")))
sketch17.setExpression("Constraints[8]", "Params.sketch17_width")
sketch17.setExpression("Constraints[9]", "Params.sketch17_height")
pad17 = doc.addObject("PartDesign::Pad", "Pad016")
body20.addObject(pad17)
pad17.Profile = sketch17
pad17.setExpression("Length", "Params.pad17_length")
doc.recompute()

boolean7 = doc.addObject("PartDesign::Boolean", "Boolean006")
body20.addObject(boolean7)
boolean7.Type = "Fuse"
boolean7.addObjects([body6])
doc.recompute()

boolean8 = doc.addObject("PartDesign::Boolean", "Boolean007")
body20.addObject(boolean8)
boolean8.Type = "Fuse"
boolean8.addObjects([body8])
doc.recompute()

boolean9 = doc.addObject("PartDesign::Boolean", "Boolean008")
body20.addObject(boolean9)
boolean9.Type = "Fuse"
boolean9.addObjects([body10])
doc.recompute()

boolean10 = doc.addObject("PartDesign::Boolean", "Boolean009")
body20.addObject(boolean10)
boolean10.Type = "Fuse"
boolean10.addObjects([body11])
doc.recompute()

boolean11 = doc.addObject("PartDesign::Boolean", "Boolean010")
body20.addObject(boolean11)
boolean11.Type = "Fuse"
boolean11.addObjects([body12])
doc.recompute()

boolean12 = doc.addObject("PartDesign::Boolean", "Boolean011")
body20.addObject(boolean12)
boolean12.Type = "Fuse"
boolean12.addObjects([body13])
doc.recompute()

boolean13 = doc.addObject("PartDesign::Boolean", "Boolean012")
body20.addObject(boolean13)
boolean13.Type = "Fuse"
boolean13.addObjects([body14])
doc.recompute()

boolean14 = doc.addObject("PartDesign::Boolean", "Boolean013")
body20.addObject(boolean14)
boolean14.Type = "Fuse"
boolean14.addObjects([body15])
doc.recompute()

boolean15 = doc.addObject("PartDesign::Boolean", "Boolean014")
body20.addObject(boolean15)
boolean15.Type = "Fuse"
boolean15.addObjects([body19])
doc.recompute()

boolean16 = doc.addObject("PartDesign::Boolean", "Boolean015")
body20.addObject(boolean16)
boolean16.Type = "Fuse"
boolean16.addObjects([body])
doc.recompute()

boolean17 = doc.addObject("PartDesign::Boolean", "Boolean016")
body20.addObject(boolean17)
boolean17.Type = "Fuse"
boolean17.addObjects([body2])
doc.recompute()

boolean18 = doc.addObject("PartDesign::Boolean", "Boolean017")
body20.addObject(boolean18)
boolean18.Type = "Fuse"
boolean18.addObjects([body3])
doc.recompute()

boolean19 = doc.addObject("PartDesign::Boolean", "Boolean018")
body20.addObject(boolean19)
boolean19.Type = "Fuse"
boolean19.addObjects([body4])
body21 = doc.addObject("PartDesign::Body", "Body020")

# Sketch on XY plane
sketch18 = doc.addObject("Sketcher::SketchObject", "Sketch017")
body21.addObject(sketch18)
sketch18.AttachmentSupport = (doc.getObject("XY_Plane020"), [""])
sketch18.MapMode = "FlatFace"
sketch18.addGeometry(Part.Circle(App.Vector(26.3, 63.91, 0), App.Vector(0, 0, 1), 3), False)
sketch18.addConstraint(Sketcher.Constraint("Diameter", 0, Q("6 mm")))
sketch18.addConstraint(Sketcher.Constraint("DistanceX", -1, 1, 0, 3, Q("26.3 mm")))
sketch18.addConstraint(Sketcher.Constraint("DistanceY", -1, 1, 0, 3, Q("63.91 mm")))
sketch18.setExpression("Constraints[0]", "Params.sketch18_diameter")
pad18 = doc.addObject("PartDesign::Pad", "Pad017")
body21.addObject(pad18)
pad18.Profile = sketch18
pad18.setExpression("Length", "Params.pad18_length")
body22 = doc.addObject("PartDesign::Body", "Body021")

# Sketch on XY plane
sketch19 = doc.addObject("Sketcher::SketchObject", "Sketch018")
body22.addObject(sketch19)
sketch19.AttachmentSupport = (doc.getObject("XY_Plane021"), [""])
sketch19.MapMode = "FlatFace"
sketch19.addGeometry(Part.Circle(App.Vector(65.19, 23.81, 0), App.Vector(0, 0, 1), 3), False)
sketch19.addConstraint(Sketcher.Constraint("Diameter", 0, Q("6 mm")))
sketch19.addConstraint(Sketcher.Constraint("DistanceX", -1, 1, 0, 3, Q("65.19 mm")))
sketch19.addConstraint(Sketcher.Constraint("DistanceY", -1, 1, 0, 3, Q("23.81 mm")))
sketch19.setExpression("Constraints[0]", "Params.sketch19_diameter")
pad19 = doc.addObject("PartDesign::Pad", "Pad018")
body22.addObject(pad19)
pad19.Profile = sketch19
pad19.setExpression("Length", "Params.pad19_length")
body23 = doc.addObject("PartDesign::Body", "Body022")

# Sketch on XY plane
sketch20 = doc.addObject("Sketcher::SketchObject", "Sketch019")
body23.addObject(sketch20)
sketch20.AttachmentSupport = (doc.getObject("XY_Plane022"), [""])
sketch20.MapMode = "FlatFace"
sketch20.addGeometry(Part.Circle(App.Vector(26.3, 23.81, 0), App.Vector(0, 0, 1), 3), False)
sketch20.addConstraint(Sketcher.Constraint("Diameter", 0, Q("6 mm")))
sketch20.addConstraint(Sketcher.Constraint("DistanceX", -1, 1, 0, 3, Q("26.3 mm")))
sketch20.addConstraint(Sketcher.Constraint("DistanceY", -1, 1, 0, 3, Q("23.81 mm")))
sketch20.setExpression("Constraints[0]", "Params.sketch20_diameter")
pad20 = doc.addObject("PartDesign::Pad", "Pad019")
body23.addObject(pad20)
pad20.Profile = sketch20
pad20.setExpression("Length", "Params.pad20_length")
body24 = doc.addObject("PartDesign::Body", "Body023")

# Sketch on XY plane
sketch21 = doc.addObject("Sketcher::SketchObject", "Sketch020")
body24.addObject(sketch21)
sketch21.AttachmentSupport = (doc.getObject("XY_Plane023"), [""])
sketch21.MapMode = "FlatFace"
sketch21.addGeometry(Part.Circle(App.Vector(65.19, 63.91, 0), App.Vector(0, 0, 1), 3), False)
sketch21.addConstraint(Sketcher.Constraint("Diameter", 0, Q("6 mm")))
sketch21.addConstraint(Sketcher.Constraint("DistanceX", -1, 1, 0, 3, Q("65.19 mm")))
sketch21.addConstraint(Sketcher.Constraint("DistanceY", -1, 1, 0, 3, Q("63.91 mm")))
sketch21.setExpression("Constraints[0]", "Params.sketch21_diameter")
pad21 = doc.addObject("PartDesign::Pad", "Pad020")
body24.addObject(pad21)
pad21.Profile = sketch21
pad21.setExpression("Length", "Params.pad21_length")
body25 = doc.addObject("PartDesign::Body", "Body024")
body25.AllowCompound = True

# Sketch on XY plane
sketch22 = doc.addObject("Sketcher::SketchObject", "Sketch021")
body25.addObject(sketch22)
sketch22.AttachmentSupport = (doc.getObject("XY_Plane024"), [""])
sketch22.MapMode = "FlatFace"
sketch22.addGeometry(Part.LineSegment(App.Vector(24, 55, 0), App.Vector(24, 33, 0)), False)
sketch22.addGeometry(Part.LineSegment(App.Vector(24, 33, 0), App.Vector(29, 33, 0)), False)
sketch22.addGeometry(Part.LineSegment(App.Vector(29, 33, 0), App.Vector(29, 55, 0)), False)
sketch22.addGeometry(Part.LineSegment(App.Vector(29, 55, 0), App.Vector(24, 55, 0)), False)
sketch22.addConstraint(Sketcher.Constraint("Coincident", 0, 2, 1, 1))
sketch22.addConstraint(Sketcher.Constraint("Coincident", 1, 2, 2, 1))
sketch22.addConstraint(Sketcher.Constraint("Coincident", 2, 2, 3, 1))
sketch22.addConstraint(Sketcher.Constraint("Coincident", 3, 2, 0, 1))
sketch22.addConstraint(Sketcher.Constraint("Vertical", 0))
sketch22.addConstraint(Sketcher.Constraint("Horizontal", 1))
sketch22.addConstraint(Sketcher.Constraint("Vertical", 2))
sketch22.addConstraint(Sketcher.Constraint("Horizontal", 3))
sketch22.addConstraint(Sketcher.Constraint("DistanceX", 1, 1, 1, 2, Q("5 mm")))
sketch22.addConstraint(Sketcher.Constraint("DistanceY", 0, 2, 0, 1, Q("22 mm")))
sketch22.addConstraint(Sketcher.Constraint("DistanceX", -1, 1, 0, 2, Q("24 mm")))
sketch22.addConstraint(Sketcher.Constraint("DistanceY", -1, 1, 0, 2, Q("33 mm")))
sketch22.setExpression("Constraints[8]", "Params.sketch22_width")
sketch22.setExpression("Constraints[9]", "Params.sketch22_height")
pad22 = doc.addObject("PartDesign::Pad", "Pad021")
body25.addObject(pad22)
pad22.Profile = sketch22
pad22.setExpression("Length", "Params.pad22_length")
doc.recompute()

boolean20 = doc.addObject("PartDesign::Boolean", "Boolean019")
body25.addObject(boolean20)
boolean20.Type = "Fuse"
boolean20.addObjects([body21])
doc.recompute()

boolean21 = doc.addObject("PartDesign::Boolean", "Boolean020")
body25.addObject(boolean21)
boolean21.Type = "Fuse"
boolean21.addObjects([body22])
doc.recompute()

boolean22 = doc.addObject("PartDesign::Boolean", "Boolean021")
body25.addObject(boolean22)
boolean22.Type = "Fuse"
boolean22.addObjects([body23])
doc.recompute()

boolean23 = doc.addObject("PartDesign::Boolean", "Boolean022")
body25.addObject(boolean23)
boolean23.Type = "Fuse"
boolean23.addObjects([body24])
body26 = doc.addObject("PartDesign::Body", "Body025")

# Sketch on XY plane
sketch23 = doc.addObject("Sketcher::SketchObject", "Sketch022")
body26.addObject(sketch23)
sketch23.AttachmentSupport = (doc.getObject("XY_Plane025"), [""])
sketch23.MapMode = "FlatFace"
sketch23.addGeometry(Part.LineSegment(App.Vector(70.5, 64, 0), App.Vector(70.5, 23, 0)), False)
sketch23.addGeometry(Part.LineSegment(App.Vector(70.5, 23, 0), App.Vector(80.5, 23, 0)), False)
sketch23.addGeometry(Part.LineSegment(App.Vector(80.5, 23, 0), App.Vector(80.5, 64, 0)), False)
sketch23.addGeometry(Part.LineSegment(App.Vector(80.5, 64, 0), App.Vector(70.5, 64, 0)), False)
sketch23.addConstraint(Sketcher.Constraint("Coincident", 0, 2, 1, 1))
sketch23.addConstraint(Sketcher.Constraint("Coincident", 1, 2, 2, 1))
sketch23.addConstraint(Sketcher.Constraint("Coincident", 2, 2, 3, 1))
sketch23.addConstraint(Sketcher.Constraint("Coincident", 3, 2, 0, 1))
sketch23.addConstraint(Sketcher.Constraint("Vertical", 0))
sketch23.addConstraint(Sketcher.Constraint("Horizontal", 1))
sketch23.addConstraint(Sketcher.Constraint("Vertical", 2))
sketch23.addConstraint(Sketcher.Constraint("Horizontal", 3))
sketch23.addConstraint(Sketcher.Constraint("DistanceX", 1, 1, 1, 2, Q("10 mm")))
sketch23.addConstraint(Sketcher.Constraint("DistanceY", 0, 2, 0, 1, Q("41 mm")))
sketch23.addConstraint(Sketcher.Constraint("DistanceY", -1, 1, 0, 2, Q("23 mm")))
sketch23.addConstraint(Sketcher.Constraint("DistanceX", -1, 1, 0, 2, Q("70.5 mm")))
sketch23.setExpression("Constraints[8]", "Params.sketch23_width")
sketch23.setExpression("Constraints[9]", "Params.sketch23_height")
pad23 = doc.addObject("PartDesign::Pad", "Pad022")
body26.addObject(pad23)
pad23.Profile = sketch23
pad23.setExpression("Length", "Params.pad23_length")
body27 = doc.addObject("PartDesign::Body", "Body026")
body27.AllowCompound = True

# Sketch on XY plane
sketch24 = doc.addObject("Sketcher::SketchObject", "Sketch023")
body27.addObject(sketch24)
sketch24.AttachmentSupport = (doc.getObject("XY_Plane026"), [""])
sketch24.MapMode = "FlatFace"
sketch24.addGeometry(Part.LineSegment(App.Vector(85.5, 64, 0), App.Vector(85.5, 23, 0)), False)
sketch24.addGeometry(Part.LineSegment(App.Vector(85.5, 23, 0), App.Vector(95.5, 23, 0)), False)
sketch24.addGeometry(Part.LineSegment(App.Vector(95.5, 23, 0), App.Vector(95.5, 64, 0)), False)
sketch24.addGeometry(Part.LineSegment(App.Vector(95.5, 64, 0), App.Vector(85.5, 64, 0)), False)
sketch24.addConstraint(Sketcher.Constraint("Coincident", 0, 2, 1, 1))
sketch24.addConstraint(Sketcher.Constraint("Coincident", 1, 2, 2, 1))
sketch24.addConstraint(Sketcher.Constraint("Coincident", 2, 2, 3, 1))
sketch24.addConstraint(Sketcher.Constraint("Coincident", 3, 2, 0, 1))
sketch24.addConstraint(Sketcher.Constraint("Vertical", 0))
sketch24.addConstraint(Sketcher.Constraint("Horizontal", 1))
sketch24.addConstraint(Sketcher.Constraint("Vertical", 2))
sketch24.addConstraint(Sketcher.Constraint("Horizontal", 3))
sketch24.addConstraint(Sketcher.Constraint("DistanceX", 1, 1, 1, 2, Q("10 mm")))
sketch24.addConstraint(Sketcher.Constraint("DistanceY", 0, 2, 0, 1, Q("41 mm")))
sketch24.addConstraint(Sketcher.Constraint("DistanceY", -1, 1, 0, 2, Q("23 mm")))
sketch24.addConstraint(Sketcher.Constraint("DistanceX", -1, 1, 0, 2, Q("85.5 mm")))
sketch24.setExpression("Constraints[8]", "Params.sketch24_width")
sketch24.setExpression("Constraints[9]", "Params.sketch24_height")
pad24 = doc.addObject("PartDesign::Pad", "Pad023")
body27.addObject(pad24)
pad24.Profile = sketch24
pad24.setExpression("Length", "Params.pad24_length")
doc.recompute()

boolean24 = doc.addObject("PartDesign::Boolean", "Boolean023")
body27.addObject(boolean24)
boolean24.Type = "Fuse"
boolean24.addObjects([body26])
body28 = doc.addObject("PartDesign::Body", "Body027")

# Sketch on XY plane
sketch25 = doc.addObject("Sketcher::SketchObject", "Sketch024")
body28.addObject(sketch25)
sketch25.AttachmentSupport = (doc.getObject("XY_Plane027"), [""])
sketch25.MapMode = "FlatFace"
sketch25.addGeometry(Part.LineSegment(App.Vector(-11, 33.5, 0), App.Vector(-11, 20.5, 0)), False)
sketch25.addGeometry(Part.LineSegment(App.Vector(-11, 20.5, 0), App.Vector(6, 20.5, 0)), False)
sketch25.addGeometry(Part.LineSegment(App.Vector(6, 20.5, 0), App.Vector(6, 33.5, 0)), False)
sketch25.addGeometry(Part.LineSegment(App.Vector(6, 33.5, 0), App.Vector(-11, 33.5, 0)), False)
sketch25.addConstraint(Sketcher.Constraint("Coincident", 0, 2, 1, 1))
sketch25.addConstraint(Sketcher.Constraint("Coincident", 1, 2, 2, 1))
sketch25.addConstraint(Sketcher.Constraint("Coincident", 2, 2, 3, 1))
sketch25.addConstraint(Sketcher.Constraint("Coincident", 3, 2, 0, 1))
sketch25.addConstraint(Sketcher.Constraint("Vertical", 0))
sketch25.addConstraint(Sketcher.Constraint("Horizontal", 1))
sketch25.addConstraint(Sketcher.Constraint("Vertical", 2))
sketch25.addConstraint(Sketcher.Constraint("Horizontal", 3))
sketch25.addConstraint(Sketcher.Constraint("DistanceX", 1, 1, 1, 2, Q("17 mm")))
sketch25.addConstraint(Sketcher.Constraint("DistanceY", 0, 2, 0, 1, Q("13 mm")))
sketch25.addConstraint(Sketcher.Constraint("DistanceX", 0, 2, -1, 1, Q("11 mm")))
sketch25.addConstraint(Sketcher.Constraint("DistanceY", -1, 1, 0, 2, Q("20.5 mm")))
sketch25.setExpression("Constraints[8]", "Params.sketch25_width")
sketch25.setExpression("Constraints[9]", "Params.sketch25_height")
pad25 = doc.addObject("PartDesign::Pad", "Pad024")
body28.addObject(pad25)
pad25.Profile = sketch25
pad25.setExpression("Length", "Params.pad25_length")
body29 = doc.addObject("PartDesign::Body", "Body028")

# Sketch on XY plane
sketch26 = doc.addObject("Sketcher::SketchObject", "Sketch025")
body29.addObject(sketch26)
sketch26.AttachmentSupport = (doc.getObject("XY_Plane028"), [""])
sketch26.MapMode = "FlatFace"
sketch26.AttachmentOffset = App.Placement(App.Vector(0, 0, 1), App.Rotation())
sketch26.addGeometry(Part.LineSegment(App.Vector(-2, 85, 0), App.Vector(-2, 0, 0)), False)
sketch26.addGeometry(Part.LineSegment(App.Vector(-2, 0, 0), App.Vector(100, 0, 0)), False)
sketch26.addGeometry(Part.LineSegment(App.Vector(100, 0, 0), App.Vector(100, 85, 0)), False)
sketch26.addGeometry(Part.LineSegment(App.Vector(100, 85, 0), App.Vector(-2, 85, 0)), False)
sketch26.addConstraint(Sketcher.Constraint("Coincident", 0, 2, 1, 1))
sketch26.addConstraint(Sketcher.Constraint("Coincident", 1, 2, 2, 1))
sketch26.addConstraint(Sketcher.Constraint("Coincident", 2, 2, 3, 1))
sketch26.addConstraint(Sketcher.Constraint("Coincident", 3, 2, 0, 1))
sketch26.addConstraint(Sketcher.Constraint("Vertical", 0))
sketch26.addConstraint(Sketcher.Constraint("Horizontal", 1))
sketch26.addConstraint(Sketcher.Constraint("Vertical", 2))
sketch26.addConstraint(Sketcher.Constraint("Horizontal", 3))
sketch26.addConstraint(Sketcher.Constraint("PointOnObject", 0, 2, -1))
sketch26.addConstraint(Sketcher.Constraint("DistanceX", 1, 1, 1, 2, Q("102 mm")))
sketch26.addConstraint(Sketcher.Constraint("DistanceY", 0, 2, 0, 1, Q("85 mm")))
sketch26.addConstraint(Sketcher.Constraint("DistanceX", 0, 2, -1, 1, Q("2 mm")))
sketch26.setExpression("Constraints[9]", "Params.sketch26_width")
sketch26.setExpression("Constraints[10]", "Params.sketch26_height")
pad26 = doc.addObject("PartDesign::Pad", "Pad025")
body29.addObject(pad26)
pad26.Profile = sketch26
pad26.setExpression("Length", "Params.pad26_length")
doc.recompute()

boolean25 = doc.addObject("PartDesign::Boolean", "Boolean024")
body29.addObject(boolean25)
boolean25.Type = "Cut"
boolean25.addObjects([body28])
doc.recompute()

boolean26 = doc.addObject("PartDesign::Boolean", "Boolean025")
body29.addObject(boolean26)
boolean26.Type = "Cut"
boolean26.addObjects([body27])
doc.recompute()

boolean27 = doc.addObject("PartDesign::Boolean", "Boolean026")
body29.addObject(boolean27)
boolean27.Type = "Cut"
boolean27.addObjects([body25])
doc.recompute()

boolean28 = doc.addObject("PartDesign::Boolean", "Boolean027")
body29.addObject(boolean28)
boolean28.Type = "Cut"
boolean28.addObjects([body20])
body30 = doc.addObject("PartDesign::Body", "Body029")
doc.recompute()

body29.Placement = App.Placement(App.Vector(-192, 86, 5), App.Rotation(App.Vector(1, 0, 0), 180))
boolean29 = doc.addObject("PartDesign::Boolean", "Boolean028")
body30.addObject(boolean29)
boolean29.Type = "Fuse"
boolean29.addObjects([body29])

doc.recompute()
